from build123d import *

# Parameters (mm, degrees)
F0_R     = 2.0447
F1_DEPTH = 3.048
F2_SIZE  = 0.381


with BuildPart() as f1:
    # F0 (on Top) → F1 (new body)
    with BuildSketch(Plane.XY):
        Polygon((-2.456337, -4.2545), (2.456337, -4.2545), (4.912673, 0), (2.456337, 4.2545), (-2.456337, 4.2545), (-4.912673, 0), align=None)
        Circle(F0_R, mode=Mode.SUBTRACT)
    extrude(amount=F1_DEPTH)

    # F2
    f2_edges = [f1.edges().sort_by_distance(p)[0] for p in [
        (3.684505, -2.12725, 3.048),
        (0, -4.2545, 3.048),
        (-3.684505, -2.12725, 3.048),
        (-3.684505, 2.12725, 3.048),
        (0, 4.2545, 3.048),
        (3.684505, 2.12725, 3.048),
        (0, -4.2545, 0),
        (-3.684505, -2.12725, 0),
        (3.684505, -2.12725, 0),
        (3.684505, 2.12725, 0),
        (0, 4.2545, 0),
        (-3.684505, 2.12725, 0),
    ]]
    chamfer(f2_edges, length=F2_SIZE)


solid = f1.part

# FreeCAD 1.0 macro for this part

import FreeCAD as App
import Part
import Sketcher
from FreeCAD import Vector
Q = App.Units.Quantity


def edges_at(feature, points):
    """Names of the edges that pass closest to the given points."""
    edges = feature.Shape.Edges
    near = lambda p: min(range(len(edges)), key=lambda i: edges[i].distToShape(Part.Vertex(*p))[0])
    return sorted({f"Edge{near(p) + 1}" for p in points})


def add_polygon(sketch, points):
    """Adds a closed chain of lines whose ends are joined by coincident constraints."""
    first, n = sketch.GeometryCount, len(points)
    for a, b in zip(points, points[1:] + points[:1]):
        sketch.addGeometry(Part.LineSegment(App.Vector(*a, 0), App.Vector(*b, 0)), False)
    for i in range(n):
        sketch.addConstraint(Sketcher.Constraint("Coincident", first + i, 2, first + (i + 1) % n, 1))

doc = App.newDocument("Part")
params = doc.addObject("Spreadsheet::Sheet", "Params")
for row, (alias, value) in enumerate([
    ("sketch1_diameter", "0.161 in"),
    ("pad1_length", "0.12 in"),
    ("chamfer_size", "0.015 in"),
], start=1):
    params.set(f"A{row}", alias)
    params.set(f"B{row}", "=" + value)
    params.setAlias(f"B{row}", alias)

body = doc.addObject("PartDesign::Body", "Body")

# Sketch on XY plane
sketch1 = body.newObject("Sketcher::SketchObject", "Sketch")
sketch1.AttachmentSupport = (doc.getObject("XY_Plane"), [""])
sketch1.MapMode = "FlatFace"
add_polygon(sketch1, [(-2.5, -4.3), (2.5, -4.3), (4.9, 0), (2.5, 4.3), (-2.5, 4.3), (-4.9, 0)])  # lines 0-5
sketch1.addGeometry(Part.Circle(Vector(0, 0, 0), Vector(0, 0, 1), 2), False)  # 6
sketch1.addConstraint(Sketcher.Constraint("Horizontal", 0))
sketch1.addConstraint(Sketcher.Constraint("Horizontal", 3))
sketch1.addConstraint(Sketcher.Constraint("Coincident", 6, 3, -1, 1))
sketch1.addConstraint(Sketcher.Constraint("Symmetric", 0, 2, 3, 2, -1, 1))
sketch1.addConstraint(Sketcher.Constraint("Symmetric", 1, 2, 4, 2, -1, 1))
sketch1.addConstraint(Sketcher.Constraint("PointOnObject", 1, 2, -1))
sketch1.addConstraint(Sketcher.Constraint("Parallel", 2, 5))
sketch1.addConstraint(Sketcher.Constraint("Vertical", 0, 2, 2, 2))
sketch1.addConstraint(Sketcher.Constraint("Diameter", 6, Q("0.161 in")))
sketch1.addConstraint(Sketcher.Constraint("Angle", 1, Q("60.000007 deg")))
sketch1.addConstraint(Sketcher.Constraint("DistanceY", 0, 2, 2, 2, Q("0.335 in")))
sketch1.addConstraint(Sketcher.Constraint("DistanceX", 0, 1, 0, 2, 4.912674))
sketch1.setExpression("Constraints[14]", "Params.sketch1_diameter")
pad1 = body.newObject("PartDesign::Pad", "Pad")
pad1.Profile = sketch1
pad1.setExpression("Length", "Params.pad1_length")
doc.recompute()

chamfer = body.newObject("PartDesign::Chamfer", "Chamfer")
chamfer.Base = (pad1, edges_at(pad1, [
    (3.685, -2.127, 3.048),
    (0, -4.255, 3.048),
    (-3.685, -2.127, 3.048),
    (-3.685, 2.127, 3.048),
    (0, 4.255, 3.048),
    (3.685, 2.127, 3.048),
    (0, -4.255, 0),
    (-3.685, -2.127, 0),
    (3.685, -2.127, 0),
    (3.685, 2.127, 0),
    (0, 4.255, 0),
    (-3.685, 2.127, 0),
]))
chamfer.setExpression("Size", "Params.chamfer_size")

doc.recompute()
